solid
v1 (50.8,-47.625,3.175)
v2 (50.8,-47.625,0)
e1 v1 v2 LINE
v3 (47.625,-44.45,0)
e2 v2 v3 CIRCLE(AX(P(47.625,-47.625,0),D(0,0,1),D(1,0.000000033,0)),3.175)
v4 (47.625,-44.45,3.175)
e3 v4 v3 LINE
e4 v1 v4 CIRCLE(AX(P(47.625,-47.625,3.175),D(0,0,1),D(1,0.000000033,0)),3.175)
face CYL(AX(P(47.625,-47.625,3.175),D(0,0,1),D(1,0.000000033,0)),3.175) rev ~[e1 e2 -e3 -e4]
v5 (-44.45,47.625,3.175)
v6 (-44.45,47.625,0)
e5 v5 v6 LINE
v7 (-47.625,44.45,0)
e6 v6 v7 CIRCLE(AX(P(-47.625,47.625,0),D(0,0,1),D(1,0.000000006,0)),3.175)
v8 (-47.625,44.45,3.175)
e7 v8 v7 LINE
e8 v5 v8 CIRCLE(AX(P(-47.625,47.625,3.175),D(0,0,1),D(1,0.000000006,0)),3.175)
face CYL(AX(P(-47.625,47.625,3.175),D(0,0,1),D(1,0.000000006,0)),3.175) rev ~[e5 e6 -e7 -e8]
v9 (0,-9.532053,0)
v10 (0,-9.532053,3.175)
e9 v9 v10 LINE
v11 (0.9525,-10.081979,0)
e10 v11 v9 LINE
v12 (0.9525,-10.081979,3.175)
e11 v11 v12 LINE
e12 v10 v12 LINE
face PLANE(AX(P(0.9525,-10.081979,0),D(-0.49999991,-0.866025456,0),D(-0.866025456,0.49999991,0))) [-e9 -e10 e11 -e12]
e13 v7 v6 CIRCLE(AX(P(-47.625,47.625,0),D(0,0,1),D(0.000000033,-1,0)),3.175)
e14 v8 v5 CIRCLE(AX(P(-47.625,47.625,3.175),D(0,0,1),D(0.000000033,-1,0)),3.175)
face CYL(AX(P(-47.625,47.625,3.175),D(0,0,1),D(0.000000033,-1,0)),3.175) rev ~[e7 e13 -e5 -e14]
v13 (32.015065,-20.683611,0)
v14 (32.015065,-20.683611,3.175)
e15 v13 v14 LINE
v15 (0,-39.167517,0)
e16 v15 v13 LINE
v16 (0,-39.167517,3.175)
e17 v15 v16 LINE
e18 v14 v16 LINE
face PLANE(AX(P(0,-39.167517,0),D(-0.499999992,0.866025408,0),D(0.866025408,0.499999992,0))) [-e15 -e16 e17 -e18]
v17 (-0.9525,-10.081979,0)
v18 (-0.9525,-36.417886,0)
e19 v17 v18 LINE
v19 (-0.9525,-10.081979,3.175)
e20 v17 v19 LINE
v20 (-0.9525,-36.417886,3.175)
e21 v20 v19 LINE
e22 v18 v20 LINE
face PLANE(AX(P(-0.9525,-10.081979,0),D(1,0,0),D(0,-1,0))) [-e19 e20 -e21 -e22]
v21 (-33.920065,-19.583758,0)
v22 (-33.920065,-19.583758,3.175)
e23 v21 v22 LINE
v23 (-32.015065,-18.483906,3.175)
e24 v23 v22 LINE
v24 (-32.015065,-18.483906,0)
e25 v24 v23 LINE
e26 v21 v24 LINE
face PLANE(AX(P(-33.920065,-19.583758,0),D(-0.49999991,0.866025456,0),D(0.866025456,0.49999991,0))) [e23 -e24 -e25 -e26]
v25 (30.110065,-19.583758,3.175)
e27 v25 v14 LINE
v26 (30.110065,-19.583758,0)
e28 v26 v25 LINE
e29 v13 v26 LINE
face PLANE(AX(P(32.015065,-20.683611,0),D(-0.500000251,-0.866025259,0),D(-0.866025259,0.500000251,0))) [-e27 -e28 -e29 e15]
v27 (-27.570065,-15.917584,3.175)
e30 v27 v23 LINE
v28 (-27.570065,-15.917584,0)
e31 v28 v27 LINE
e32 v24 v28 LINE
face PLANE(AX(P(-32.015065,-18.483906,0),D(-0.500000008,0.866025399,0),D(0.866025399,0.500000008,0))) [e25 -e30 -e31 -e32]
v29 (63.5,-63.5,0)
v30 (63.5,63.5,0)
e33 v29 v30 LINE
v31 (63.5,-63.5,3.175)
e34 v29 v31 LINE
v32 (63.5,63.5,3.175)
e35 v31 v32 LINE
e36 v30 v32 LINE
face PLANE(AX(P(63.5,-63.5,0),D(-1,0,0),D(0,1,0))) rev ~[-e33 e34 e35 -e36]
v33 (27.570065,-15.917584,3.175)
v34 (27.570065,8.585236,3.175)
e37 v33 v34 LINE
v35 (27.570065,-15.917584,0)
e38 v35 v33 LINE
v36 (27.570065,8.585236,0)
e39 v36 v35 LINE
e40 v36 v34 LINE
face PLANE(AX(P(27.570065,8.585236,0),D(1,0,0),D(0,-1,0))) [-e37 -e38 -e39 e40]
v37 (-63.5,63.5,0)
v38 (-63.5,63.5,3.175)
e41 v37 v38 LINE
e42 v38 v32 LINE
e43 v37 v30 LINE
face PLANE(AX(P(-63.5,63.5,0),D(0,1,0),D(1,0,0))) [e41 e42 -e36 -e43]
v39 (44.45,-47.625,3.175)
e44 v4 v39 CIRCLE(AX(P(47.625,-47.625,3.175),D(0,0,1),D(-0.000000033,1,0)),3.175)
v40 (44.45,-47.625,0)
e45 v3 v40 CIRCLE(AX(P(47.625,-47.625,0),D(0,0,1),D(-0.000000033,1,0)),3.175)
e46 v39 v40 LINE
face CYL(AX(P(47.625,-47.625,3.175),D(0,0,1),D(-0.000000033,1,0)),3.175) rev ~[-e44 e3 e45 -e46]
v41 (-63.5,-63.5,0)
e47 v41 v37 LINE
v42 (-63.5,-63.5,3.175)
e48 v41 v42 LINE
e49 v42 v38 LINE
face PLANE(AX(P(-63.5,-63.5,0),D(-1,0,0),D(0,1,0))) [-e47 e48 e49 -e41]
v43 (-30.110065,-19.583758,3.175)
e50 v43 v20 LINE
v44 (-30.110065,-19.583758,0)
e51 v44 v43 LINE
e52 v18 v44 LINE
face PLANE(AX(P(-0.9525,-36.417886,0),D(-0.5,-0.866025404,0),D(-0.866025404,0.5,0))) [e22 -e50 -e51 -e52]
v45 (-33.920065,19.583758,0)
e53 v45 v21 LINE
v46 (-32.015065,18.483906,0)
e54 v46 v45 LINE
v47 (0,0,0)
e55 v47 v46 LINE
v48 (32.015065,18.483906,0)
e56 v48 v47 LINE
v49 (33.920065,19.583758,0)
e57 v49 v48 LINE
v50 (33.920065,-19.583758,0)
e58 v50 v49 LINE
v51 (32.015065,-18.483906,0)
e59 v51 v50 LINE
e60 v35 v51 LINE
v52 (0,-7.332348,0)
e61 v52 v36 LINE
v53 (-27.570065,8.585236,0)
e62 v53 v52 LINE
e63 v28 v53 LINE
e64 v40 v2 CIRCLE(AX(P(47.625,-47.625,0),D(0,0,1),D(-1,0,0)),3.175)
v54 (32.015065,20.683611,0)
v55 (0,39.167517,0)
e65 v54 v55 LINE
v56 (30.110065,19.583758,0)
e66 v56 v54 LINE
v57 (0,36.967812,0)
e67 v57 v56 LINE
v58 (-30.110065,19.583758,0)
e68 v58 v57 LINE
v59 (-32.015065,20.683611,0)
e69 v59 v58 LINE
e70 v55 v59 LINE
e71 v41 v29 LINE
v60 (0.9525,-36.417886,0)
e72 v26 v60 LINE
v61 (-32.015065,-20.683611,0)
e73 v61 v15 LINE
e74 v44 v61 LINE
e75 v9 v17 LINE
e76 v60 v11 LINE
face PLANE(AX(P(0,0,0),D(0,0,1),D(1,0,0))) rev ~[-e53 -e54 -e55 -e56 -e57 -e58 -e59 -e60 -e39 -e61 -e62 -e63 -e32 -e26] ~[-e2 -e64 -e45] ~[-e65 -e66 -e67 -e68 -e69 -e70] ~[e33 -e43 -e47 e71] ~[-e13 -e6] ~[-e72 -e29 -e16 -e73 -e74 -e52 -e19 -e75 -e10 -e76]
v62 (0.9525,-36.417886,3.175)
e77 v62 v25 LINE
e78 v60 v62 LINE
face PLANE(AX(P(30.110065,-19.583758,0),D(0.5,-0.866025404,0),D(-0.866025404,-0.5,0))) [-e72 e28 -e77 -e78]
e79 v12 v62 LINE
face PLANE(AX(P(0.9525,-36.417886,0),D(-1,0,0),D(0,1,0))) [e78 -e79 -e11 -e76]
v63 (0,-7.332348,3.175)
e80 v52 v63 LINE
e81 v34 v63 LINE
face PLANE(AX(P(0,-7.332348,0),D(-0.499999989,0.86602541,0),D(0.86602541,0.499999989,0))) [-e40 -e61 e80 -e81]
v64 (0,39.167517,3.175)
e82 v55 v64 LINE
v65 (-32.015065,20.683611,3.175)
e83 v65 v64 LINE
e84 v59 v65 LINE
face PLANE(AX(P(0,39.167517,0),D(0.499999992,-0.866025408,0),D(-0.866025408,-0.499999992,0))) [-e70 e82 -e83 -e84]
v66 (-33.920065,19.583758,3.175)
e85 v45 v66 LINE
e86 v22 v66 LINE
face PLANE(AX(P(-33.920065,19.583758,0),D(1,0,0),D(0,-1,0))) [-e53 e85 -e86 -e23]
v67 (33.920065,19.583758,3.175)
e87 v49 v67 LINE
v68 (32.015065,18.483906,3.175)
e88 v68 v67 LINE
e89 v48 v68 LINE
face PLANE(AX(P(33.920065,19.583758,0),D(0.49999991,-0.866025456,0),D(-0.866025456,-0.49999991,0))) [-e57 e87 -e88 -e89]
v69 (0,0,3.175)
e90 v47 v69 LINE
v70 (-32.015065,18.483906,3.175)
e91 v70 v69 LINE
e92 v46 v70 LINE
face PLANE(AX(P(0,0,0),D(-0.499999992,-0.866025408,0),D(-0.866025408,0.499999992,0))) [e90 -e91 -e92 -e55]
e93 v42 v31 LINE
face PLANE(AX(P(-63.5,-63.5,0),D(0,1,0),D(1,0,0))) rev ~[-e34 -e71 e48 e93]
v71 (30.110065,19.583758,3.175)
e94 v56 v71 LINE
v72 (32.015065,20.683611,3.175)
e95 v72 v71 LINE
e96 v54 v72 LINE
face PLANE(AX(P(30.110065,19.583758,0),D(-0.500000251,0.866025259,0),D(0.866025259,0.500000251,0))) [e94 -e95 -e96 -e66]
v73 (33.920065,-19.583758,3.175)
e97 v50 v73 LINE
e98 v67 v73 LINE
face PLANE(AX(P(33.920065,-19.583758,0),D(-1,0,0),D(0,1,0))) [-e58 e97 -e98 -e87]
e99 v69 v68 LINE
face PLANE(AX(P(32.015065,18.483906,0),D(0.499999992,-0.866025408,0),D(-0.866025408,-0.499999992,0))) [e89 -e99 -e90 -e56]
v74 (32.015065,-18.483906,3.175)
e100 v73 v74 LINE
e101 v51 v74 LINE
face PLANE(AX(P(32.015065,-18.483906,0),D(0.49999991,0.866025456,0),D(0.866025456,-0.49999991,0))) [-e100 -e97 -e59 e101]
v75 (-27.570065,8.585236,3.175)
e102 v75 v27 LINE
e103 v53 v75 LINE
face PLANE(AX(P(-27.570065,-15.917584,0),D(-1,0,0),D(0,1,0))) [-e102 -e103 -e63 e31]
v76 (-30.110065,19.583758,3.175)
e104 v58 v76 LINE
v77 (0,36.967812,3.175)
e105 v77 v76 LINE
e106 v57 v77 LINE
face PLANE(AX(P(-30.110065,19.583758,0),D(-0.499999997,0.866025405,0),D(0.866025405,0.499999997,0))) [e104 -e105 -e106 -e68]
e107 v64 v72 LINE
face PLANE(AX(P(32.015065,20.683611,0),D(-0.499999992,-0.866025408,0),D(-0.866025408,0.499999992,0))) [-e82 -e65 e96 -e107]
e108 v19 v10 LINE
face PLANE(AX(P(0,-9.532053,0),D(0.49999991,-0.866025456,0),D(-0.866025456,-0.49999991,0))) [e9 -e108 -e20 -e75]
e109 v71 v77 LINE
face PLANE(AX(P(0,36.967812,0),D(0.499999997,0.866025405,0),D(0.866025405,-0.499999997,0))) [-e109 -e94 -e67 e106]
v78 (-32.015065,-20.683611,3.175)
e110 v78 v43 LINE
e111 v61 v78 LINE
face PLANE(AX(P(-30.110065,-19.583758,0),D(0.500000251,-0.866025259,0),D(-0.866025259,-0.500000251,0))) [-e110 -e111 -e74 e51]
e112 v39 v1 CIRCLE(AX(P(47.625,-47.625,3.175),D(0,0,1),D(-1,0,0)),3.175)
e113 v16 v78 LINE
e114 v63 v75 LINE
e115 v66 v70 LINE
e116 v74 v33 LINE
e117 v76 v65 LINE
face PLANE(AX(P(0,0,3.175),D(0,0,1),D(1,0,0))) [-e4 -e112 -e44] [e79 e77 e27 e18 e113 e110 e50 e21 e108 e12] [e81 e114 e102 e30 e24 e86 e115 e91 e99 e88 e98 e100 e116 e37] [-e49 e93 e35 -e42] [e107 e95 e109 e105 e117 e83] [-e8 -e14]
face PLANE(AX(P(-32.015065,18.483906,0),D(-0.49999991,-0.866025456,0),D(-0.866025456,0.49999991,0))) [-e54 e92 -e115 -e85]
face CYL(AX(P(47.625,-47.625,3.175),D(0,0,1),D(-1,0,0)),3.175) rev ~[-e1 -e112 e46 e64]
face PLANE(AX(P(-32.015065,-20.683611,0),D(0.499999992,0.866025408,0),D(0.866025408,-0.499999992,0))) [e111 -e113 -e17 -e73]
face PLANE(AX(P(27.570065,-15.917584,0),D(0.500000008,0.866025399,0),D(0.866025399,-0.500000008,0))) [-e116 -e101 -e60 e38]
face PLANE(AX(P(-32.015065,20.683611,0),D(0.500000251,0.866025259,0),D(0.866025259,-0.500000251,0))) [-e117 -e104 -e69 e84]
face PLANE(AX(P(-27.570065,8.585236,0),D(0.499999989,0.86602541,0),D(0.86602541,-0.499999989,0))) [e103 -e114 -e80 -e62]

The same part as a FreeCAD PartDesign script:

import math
import FreeCAD as App
import Part
import Sketcher

V = App.Vector
Q = App.Units.Quantity

doc = App.newDocument("Part")
body = doc.addObject("PartDesign::Body", "Body")

# Sketch on XY plane
sketch1 = body.newObject("Sketcher::SketchObject", "Sketch")
sketch1.AttachmentSupport = (doc.getObject("XY_Plane"), [""])
sketch1.MapMode = "FlatFace"
sketch1.addGeometry(Part.LineSegment(V(-64, 64, 0), V(-64, -64, 0)), False)
sketch1.addGeometry(Part.LineSegment(V(-64, -64, 0), V(64, -64, 0)), False)
sketch1.addGeometry(Part.LineSegment(V(64, -64, 0), V(64, 64, 0)), False)
sketch1.addGeometry(Part.LineSegment(V(64, 64, 0), V(-64, 64, 0)), False)
sketch1.addConstraint(Sketcher.Constraint("Coincident", 0, 2, 1, 1))
sketch1.addConstraint(Sketcher.Constraint("Coincident", 1, 2, 2, 1))
sketch1.addConstraint(Sketcher.Constraint("Coincident", 2, 2, 3, 1))
sketch1.addConstraint(Sketcher.Constraint("Coincident", 3, 2, 0, 1))
sketch1.addConstraint(Sketcher.Constraint("Vertical", 0))
sketch1.addConstraint(Sketcher.Constraint("Horizontal", 1))
sketch1.addConstraint(Sketcher.Constraint("Vertical", 2))
sketch1.addConstraint(Sketcher.Constraint("Horizontal", 3))
sketch1.addConstraint(Sketcher.Constraint("Symmetric", 0, 2, 2, 2, -1, 1))
sketch1.addConstraint(Sketcher.Constraint("Equal", 3, 0))
sketch1.addConstraint(Sketcher.Constraint("DistanceX", 1, 1, 1, 2, Q("5 in")))
pad1 = body.newObject("PartDesign::Pad", "Pad")
pad1.Profile = sketch1
pad1.Length = Q("0.125 in")

# Sketch on XY plane
sketch2 = body.newObject("Sketcher::SketchObject", "Sketch001")
sketch2.AttachmentSupport = (doc.getObject("XY_Plane"), [""])
sketch2.MapMode = "FlatFace"
sketch2.addGeometry(Part.LineSegment(V(0, -39.2, 0), V(32, -20.7, 0)), False)
sketch2.addGeometry(Part.LineSegment(V(32, -20.7, 0), V(30.1, -19.6, 0)), False)
sketch2.addGeometry(Part.LineSegment(V(30.1, -19.6, 0), V(1, -36.4, 0)), False)
sketch2.addGeometry(Part.LineSegment(V(1, -36.4, 0), V(1, -10.1, 0)), False)
sketch2.addGeometry(Part.LineSegment(V(1, -10.1, 0), V(0, -9.5, 0)), False)
sketch2.addGeometry(Part.LineSegment(V(0, -9.5, 0), V(-1, -10.1, 0)), False)
sketch2.addGeometry(Part.LineSegment(V(-1, -10.1, 0), V(-1, -36.4, 0)), False)
sketch2.addGeometry(Part.LineSegment(V(-1, -36.4, 0), V(-30.1, -19.6, 0)), False)
sketch2.addGeometry(Part.LineSegment(V(-30.1, -19.6, 0), V(-32, -20.7, 0)), False)
sketch2.addGeometry(Part.LineSegment(V(-32, -20.7, 0), V(0, -39.2, 0)), False)
sketch2.addGeometry(Part.LineSegment(V(30.1, 19.6, 0), V(32, 20.7, 0)), False)
sketch2.addGeometry(Part.LineSegment(V(32, 20.7, 0), V(0, 39.2, 0)), False)
sketch2.addGeometry(Part.LineSegment(V(0, 39.2, 0), V(-32, 20.7, 0)), False)
sketch2.addGeometry(Part.LineSegment(V(-32, 20.7, 0), V(-30.1, 19.6, 0)), False)
sketch2.addGeometry(Part.LineSegment(V(-30.1, 19.6, 0), V(0, 37, 0)), False)
sketch2.addGeometry(Part.LineSegment(V(0, 37, 0), V(30.1, 19.6, 0)), False)
sketch2.addGeometry(Part.LineSegment(V(33.9, -19.6, 0), V(33.9, 19.6, 0)), False)
sketch2.addGeometry(Part.LineSegment(V(33.9, 19.6, 0), V(32, 18.5, 0)), False)
sketch2.addGeometry(Part.LineSegment(V(32, 18.5, 0), V(0, 0, 0)), False)
sketch2.addGeometry(Part.LineSegment(V(0, 0, 0), V(-32, 18.5, 0)), False)
sketch2.addGeometry(Part.LineSegment(V(-32, 18.5, 0), V(-33.9, 19.6, 0)), False)
sketch2.addGeometry(Part.LineSegment(V(-33.9, 19.6, 0), V(-33.9, -19.6, 0)), False)
sketch2.addGeometry(Part.LineSegment(V(-33.9, -19.6, 0), V(-32, -18.5, 0)), False)
sketch2.addGeometry(Part.LineSegment(V(-32, -18.5, 0), V(-27.6, -15.9, 0)), False)
sketch2.addGeometry(Part.LineSegment(V(-27.6, -15.9, 0), V(-27.6, 8.6, 0)), False)
sketch2.addGeometry(Part.LineSegment(V(-27.6, 8.6, 0), V(0, -7.3, 0)), False)
sketch2.addGeometry(Part.LineSegment(V(0, -7.3, 0), V(27.6, 8.6, 0)), False)
sketch2.addGeometry(Part.LineSegment(V(27.6, 8.6, 0), V(27.6, -15.9, 0)), False)
sketch2.addGeometry(Part.LineSegment(V(27.6, -15.9, 0), V(32, -18.5, 0)), False)
sketch2.addGeometry(Part.LineSegment(V(32, -18.5, 0), V(33.9, -19.6, 0)), False)
sketch2.addConstraint(Sketcher.Constraint("Coincident", 0, 2, 1, 1))
sketch2.addConstraint(Sketcher.Constraint("Coincident", 1, 2, 2, 1))
sketch2.addConstraint(Sketcher.Constraint("Coincident", 2, 2, 3, 1))
sketch2.addConstraint(Sketcher.Constraint("Coincident", 3, 2, 4, 1))
sketch2.addConstraint(Sketcher.Constraint("Coincident", 4, 2, 5, 1))
sketch2.addConstraint(Sketcher.Constraint("Coincident", 5, 2, 6, 1))
sketch2.addConstraint(Sketcher.Constraint("Coincident", 6, 2, 7, 1))
sketch2.addConstraint(Sketcher.Constraint("Coincident", 7, 2, 8, 1))
sketch2.addConstraint(Sketcher.Constraint("Coincident", 8, 2, 9, 1))
sketch2.addConstraint(Sketcher.Constraint("Coincident", 9, 2, 0, 1))
sketch2.addConstraint(Sketcher.Constraint("Coincident", 10, 2, 11, 1))
sketch2.addConstraint(Sketcher.Constraint("Coincident", 11, 2, 12, 1))
sketch2.addConstraint(Sketcher.Constraint("Coincident", 12, 2, 13, 1))
sketch2.addConstraint(Sketcher.Constraint("Coincident", 13, 2, 14, 1))
sketch2.addConstraint(Sketcher.Constraint("Coincident", 14, 2, 15, 1))
sketch2.addConstraint(Sketcher.Constraint("Coincident", 15, 2, 10, 1))
sketch2.addConstraint(Sketcher.Constraint("Coincident", 16, 2, 17, 1))
sketch2.addConstraint(Sketcher.Constraint("Coincident", 17, 2, 18, 1))
sketch2.addConstraint(Sketcher.Constraint("Coincident", 18, 2, 19, 1))
sketch2.addConstraint(Sketcher.Constraint("Coincident", 19, 2, 20, 1))
sketch2.addConstraint(Sketcher.Constraint("Coincident", 20, 2, 21, 1))
sketch2.addConstraint(Sketcher.Constraint("Coincident", 21, 2, 22, 1))
sketch2.addConstraint(Sketcher.Constraint("Coincident", 22, 2, 23, 1))
sketch2.addConstraint(Sketcher.Constraint("Coincident", 23, 2, 24, 1))
sketch2.addConstraint(Sketcher.Constraint("Coincident", 24, 2, 25, 1))
sketch2.addConstraint(Sketcher.Constraint("Coincident", 25, 2, 26, 1))
sketch2.addConstraint(Sketcher.Constraint("Coincident", 26, 2, 27, 1))
sketch2.addConstraint(Sketcher.Constraint("Coincident", 27, 2, 28, 1))
sketch2.addConstraint(Sketcher.Constraint("Coincident", 28, 2, 29, 1))
sketch2.addConstraint(Sketcher.Constraint("Coincident", 29, 2, 16, 1))
sketch2.addConstraint(Sketcher.Constraint("Vertical", 3))
sketch2.addConstraint(Sketcher.Constraint("Vertical", 6))
sketch2.addConstraint(Sketcher.Constraint("Vertical", 16))
sketch2.addConstraint(Sketcher.Constraint("Vertical", 21))
sketch2.addConstraint(Sketcher.Constraint("Vertical", 24))
sketch2.addConstraint(Sketcher.Constraint("Vertical", 27))
sketch2.addConstraint(Sketcher.Constraint("Coincident", 18, 2, -1, 1))
sketch2.addConstraint(Sketcher.Constraint("Symmetric", 8, 2, 10, 2, -1, 1))
sketch2.addConstraint(Sketcher.Constraint("Symmetric", 9, 2, 11, 2, -1, 1))
sketch2.addConstraint(Sketcher.Constraint("Symmetric", 0, 2, 12, 2, -1, 1))
sketch2.addConstraint(Sketcher.Constraint("Symmetric", 1, 2, 13, 2, -1, 1))
sketch2.addConstraint(Sketcher.Constraint("Symmetric", 7, 2, 15, 2, -1, 1))
sketch2.addConstraint(Sketcher.Constraint("Symmetric", 16, 2, 21, 2, -1, 1))
sketch2.addConstraint(Sketcher.Constraint("Symmetric", 17, 2, 22, 2, -1, 1))
sketch2.addConstraint(Sketcher.Constraint("Symmetric", 19, 2, 28, 2, -1, 1))
sketch2.addConstraint(Sketcher.Constraint("Symmetric", 3, 2, 5, 2, -2))
sketch2.addConstraint(Sketcher.Constraint("Symmetric", 1, 2, 7, 2, -2))
sketch2.addConstraint(Sketcher.Constraint("Symmetric", 0, 2, 8, 2, -2))
sketch2.addConstraint(Sketcher.Constraint("Symmetric", 17, 2, 19, 2, -2))
sketch2.addConstraint(Sketcher.Constraint("Symmetric", 24, 2, 26, 2, -2))
sketch2.addConstraint(Sketcher.Constraint("PointOnObject", 4, 2, -2))
sketch2.addConstraint(Sketcher.Constraint("PointOnObject", 9, 2, -2))
sketch2.addConstraint(Sketcher.Constraint("PointOnObject", 14, 2, -2))
sketch2.addConstraint(Sketcher.Constraint("PointOnObject", 25, 2, -2))
sketch2.addConstraint(Sketcher.Constraint("Parallel", 0, 2))
sketch2.addConstraint(Sketcher.Constraint("Parallel", 1, 4))
sketch2.addConstraint(Sketcher.Constraint("Parallel", 2, 5))
sketch2.addConstraint(Sketcher.Constraint("Parallel", 4, 7))
sketch2.addConstraint(Sketcher.Constraint("Parallel", 12, 14))
sketch2.addConstraint(Sketcher.Constraint("Parallel", 14, 17))
sketch2.addConstraint(Sketcher.Constraint("Parallel", 17, 18))
sketch2.addConstraint(Sketcher.Constraint("Parallel", 19, 20))
sketch2.addConstraint(Sketcher.Constraint("Parallel", 22, 23))
sketch2.addConstraint(Sketcher.Constraint("Parallel", 20, 25))
sketch2.addConstraint(Sketcher.Constraint("Parallel", 25, 28))
sketch2.addConstraint(Sketcher.Constraint("Parallel", 28, 29))
sketch2.addConstraint(Sketcher.Constraint("Horizontal", 15, 2, 16, 2))
sketch2.addConstraint(Sketcher.Constraint("Vertical", 10, 2, 17, 2))
sketch2.addConstraint(Sketcher.Constraint("Equal", 13, 17))
sketch2.addConstraint(Sketcher.Constraint("Angle", 0, Q("29.999999 deg")))
sketch2.addConstraint(Sketcher.Constraint("DistanceX", 7, 2, 23, 2, Q("0.1 in")))
sketch2.addConstraint(Sketcher.Constraint("DistanceX", 15, 2, 16, 2, Q("0.15 in")))
sketch2.addConstraint(Sketcher.Constraint("DistanceX", 5, 2, 3, 2, Q("0.075 in")))
sketch2.addConstraint(Sketcher.Constraint("DistanceY", 9, 2, 3, 2, Q("1.1450999 in")))
sketch2.addConstraint(Sketcher.Constraint("DistanceY", 24, 1, 24, 2, 24.50282))
sketch2.addConstraint(Sketcher.Constraint("DistanceY", 10, 2, 14, 2, 16.284201))
pocket1 = body.newObject("PartDesign::Pocket", "Pocket")
pocket1.Profile = sketch2
pocket1.Length = Q("1 in")
pocket1.Reversed = True

# Sketch on XY plane
sketch3 = body.newObject("Sketcher::SketchObject", "Sketch002")
sketch3.AttachmentSupport = (doc.getObject("XY_Plane"), [""])
sketch3.MapMode = "FlatFace"
sketch3.AttachmentOffset = App.Placement(V(0, 0, 0.125 * 25.4), App.Rotation())
sketch3.addGeometry(Part.ArcOfCircle(Part.Circle(V(-47.6, 47.6, 0), V(0, 0, 1), 3.2), math.radians(-90), math.radians(0)), False)
sketch3.addGeometry(Part.ArcOfCircle(Part.Circle(V(-47.6, 47.6, 0), V(0, 0, 1), 3.2), math.radians(0), math.radians(270)), False)
sketch3.addGeometry(Part.ArcOfCircle(Part.Circle(V(47.6, -47.6, 0), V(0, 0, 1), 3.2), math.radians(0), math.radians(90)), False)
sketch3.addGeometry(Part.ArcOfCircle(Part.Circle(V(47.6, -47.6, 0), V(0, 0, 1), 3.2), math.radians(90), math.radians(180)), False)
sketch3.addGeometry(Part.ArcOfCircle(Part.Circle(V(47.6, -47.6, 0), V(0, 0, 1), 3.2), math.radians(180), math.radians(360)), False)
sketch3.addConstraint(Sketcher.Constraint("Tangent", 0, 1, 1, 2))
sketch3.addConstraint(Sketcher.Constraint("Coincident", 1, 1, 0, 2))
sketch3.addConstraint(Sketcher.Constraint("Tangent", 2, 2, 3, 1))
sketch3.addConstraint(Sketcher.Constraint("Tangent", 3, 2, 4, 1))
sketch3.addConstraint(Sketcher.Constraint("Tangent", 4, 2, 2, 1))
sketch3.addConstraint(Sketcher.Constraint("Equal", 1, 2))
sketch3.addConstraint(Sketcher.Constraint("Symmetric", 0, 3, 2, 3, -1, 1))
sketch3.addConstraint(Sketcher.Constraint("Horizontal", 0, 3, 1, 1))
sketch3.addConstraint(Sketcher.Constraint("Horizontal", 4, 3, 3, 2))
sketch3.addConstraint(Sketcher.Constraint("Horizontal", 3, 2, 4, 2))
sketch3.addConstraint(Sketcher.Constraint("Vertical", 1, 3, 0, 1))
sketch3.addConstraint(Sketcher.Constraint("Vertical", 4, 3, 2, 2))
sketch3.addConstraint(Sketcher.Constraint("DistanceX", -1, 1, 4, 2, Q("2 in")))
sketch3.addConstraint(Sketcher.Constraint("Radius", 0, Q("0.125 in")))
sketch3.addConstraint(Sketcher.Constraint("DistanceY", 2, 2, 0, 1, Q("3.5 in")))
pocket2 = body.newObject("PartDesign::Pocket", "Pocket001")
pocket2.Profile = sketch3
pocket2.Length = Q("1 in")

doc.recompute()
